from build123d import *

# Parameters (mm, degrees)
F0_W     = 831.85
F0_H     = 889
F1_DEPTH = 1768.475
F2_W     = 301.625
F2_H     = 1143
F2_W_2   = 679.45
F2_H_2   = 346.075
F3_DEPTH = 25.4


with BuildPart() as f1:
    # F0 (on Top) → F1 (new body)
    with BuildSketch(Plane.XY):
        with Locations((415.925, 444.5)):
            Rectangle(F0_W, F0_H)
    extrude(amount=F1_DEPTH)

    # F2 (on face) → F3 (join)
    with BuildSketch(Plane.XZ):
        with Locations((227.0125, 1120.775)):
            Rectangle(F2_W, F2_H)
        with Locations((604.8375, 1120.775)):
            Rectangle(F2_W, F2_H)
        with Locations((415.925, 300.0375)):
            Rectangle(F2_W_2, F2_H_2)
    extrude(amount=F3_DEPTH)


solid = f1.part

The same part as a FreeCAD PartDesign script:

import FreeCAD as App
import Part
import Sketcher

V = App.Vector
Q = App.Units.Quantity


def add_polygon(sketch, points):
    """Adds a closed chain of lines whose ends are joined by coincident constraints."""
    first, n = sketch.GeometryCount, len(points)
    for a, b in zip(points, points[1:] + points[:1]):
        sketch.addGeometry(Part.LineSegment(App.Vector(*a, 0), App.Vector(*b, 0)), False)
    for i in range(n):
        sketch.addConstraint(Sketcher.Constraint("Coincident", first + i, 2, first + (i + 1) % n, 1))

doc = App.newDocument("Part")
body = doc.addObject("PartDesign::Body", "Body")

# Sketch on XY plane
sketch1 = body.newObject("Sketcher::SketchObject", "Sketch")
sketch1.AttachmentSupport = (doc.getObject("XY_Plane"), [""])
sketch1.MapMode = "FlatFace"
add_polygon(sketch1, [(0, 889), (0, 0), (832, 0), (832, 889)])  # lines 0-3
sketch1.addConstraint(Sketcher.Constraint("Vertical", 0))
sketch1.addConstraint(Sketcher.Constraint("Horizontal", 1))
sketch1.addConstraint(Sketcher.Constraint("Vertical", 2))
sketch1.addConstraint(Sketcher.Constraint("Horizontal", 3))
sketch1.addConstraint(Sketcher.Constraint("Coincident", 0, 2, -1, 1))
sketch1.addConstraint(Sketcher.Constraint("DistanceY", 0, 2, 0, 1, Q("35 in")))
sketch1.addConstraint(Sketcher.Constraint("DistanceX", 1, 1, 1, 2, Q("32.75 in")))
pad1 = body.newObject("PartDesign::Pad", "Pad")
pad1.Profile = sketch1
pad1.Length = Q("69.625 in")

# Sketch on XZ plane
sketch2 = body.newObject("Sketcher::SketchObject", "Sketch001")
sketch2.AttachmentSupport = (doc.getObject("XZ_Plane"), [""])
sketch2.MapMode = "FlatFace"
add_polygon(sketch2, [(76, 1692), (76, 549), (378, 549), (378, 1692)])  # lines 0-3
add_polygon(sketch2, [(454, 1692), (454, 549), (756, 549), (756, 1692)])  # lines 4-7
add_polygon(sketch2, [(76, 473), (76, 127), (756, 127), (756, 473)])  # lines 8-11
sketch2.addConstraint(Sketcher.Constraint("Vertical", 0))
sketch2.addConstraint(Sketcher.Constraint("Horizontal", 1))
sketch2.addConstraint(Sketcher.Constraint("Vertical", 2))
sketch2.addConstraint(Sketcher.Constraint("Horizontal", 3))
sketch2.addConstraint(Sketcher.Constraint("Vertical", 4))
sketch2.addConstraint(Sketcher.Constraint("Horizontal", 5))
sketch2.addConstraint(Sketcher.Constraint("Vertical", 6))
sketch2.addConstraint(Sketcher.Constraint("Horizontal", 7))
sketch2.addConstraint(Sketcher.Constraint("Vertical", 8))
sketch2.addConstraint(Sketcher.Constraint("Horizontal", 9))
sketch2.addConstraint(Sketcher.Constraint("Vertical", 10))
sketch2.addConstraint(Sketcher.Constraint("Horizontal", 11))
sketch2.addConstraint(Sketcher.Constraint("Horizontal", 1, 2, 4, 2))
sketch2.addConstraint(Sketcher.Constraint("Horizontal", 3, 2, 6, 2))
sketch2.addConstraint(Sketcher.Constraint("Vertical", 3, 2, 8, 2))
sketch2.addConstraint(Sketcher.Constraint("Vertical", 6, 2, 9, 2))
sketch2.addConstraint(Sketcher.Constraint("Equal", 3, 5))
sketch2.addConstraint(Sketcher.Constraint("DistanceY", 0, 2, 0, 1, Q("45 in")))
sketch2.addConstraint(Sketcher.Constraint("DistanceX", -1, 1, 0, 2, Q("3 in")))
sketch2.addConstraint(Sketcher.Constraint("DistanceY", -1, 1, 8, 2, Q("5 in")))
sketch2.addConstraint(Sketcher.Constraint("DistanceX", 1, 2, 4, 2, Q("3 in")))
sketch2.addConstraint(Sketcher.Constraint("DistanceY", 10, 2, 5, 2, Q("3 in")))
sketch2.addConstraint(Sketcher.Constraint("DistanceX", 9, 1, 9, 2, Q("26.75 in")))
sketch2.addConstraint(Sketcher.Constraint("DistanceY", 8, 2, 8, 1, Q("13.625 in")))
pad2 = body.newObject("PartDesign::Pad", "Pad001")
pad2.Profile = sketch2
pad2.Length = Q("1 in")

doc.recompute()
